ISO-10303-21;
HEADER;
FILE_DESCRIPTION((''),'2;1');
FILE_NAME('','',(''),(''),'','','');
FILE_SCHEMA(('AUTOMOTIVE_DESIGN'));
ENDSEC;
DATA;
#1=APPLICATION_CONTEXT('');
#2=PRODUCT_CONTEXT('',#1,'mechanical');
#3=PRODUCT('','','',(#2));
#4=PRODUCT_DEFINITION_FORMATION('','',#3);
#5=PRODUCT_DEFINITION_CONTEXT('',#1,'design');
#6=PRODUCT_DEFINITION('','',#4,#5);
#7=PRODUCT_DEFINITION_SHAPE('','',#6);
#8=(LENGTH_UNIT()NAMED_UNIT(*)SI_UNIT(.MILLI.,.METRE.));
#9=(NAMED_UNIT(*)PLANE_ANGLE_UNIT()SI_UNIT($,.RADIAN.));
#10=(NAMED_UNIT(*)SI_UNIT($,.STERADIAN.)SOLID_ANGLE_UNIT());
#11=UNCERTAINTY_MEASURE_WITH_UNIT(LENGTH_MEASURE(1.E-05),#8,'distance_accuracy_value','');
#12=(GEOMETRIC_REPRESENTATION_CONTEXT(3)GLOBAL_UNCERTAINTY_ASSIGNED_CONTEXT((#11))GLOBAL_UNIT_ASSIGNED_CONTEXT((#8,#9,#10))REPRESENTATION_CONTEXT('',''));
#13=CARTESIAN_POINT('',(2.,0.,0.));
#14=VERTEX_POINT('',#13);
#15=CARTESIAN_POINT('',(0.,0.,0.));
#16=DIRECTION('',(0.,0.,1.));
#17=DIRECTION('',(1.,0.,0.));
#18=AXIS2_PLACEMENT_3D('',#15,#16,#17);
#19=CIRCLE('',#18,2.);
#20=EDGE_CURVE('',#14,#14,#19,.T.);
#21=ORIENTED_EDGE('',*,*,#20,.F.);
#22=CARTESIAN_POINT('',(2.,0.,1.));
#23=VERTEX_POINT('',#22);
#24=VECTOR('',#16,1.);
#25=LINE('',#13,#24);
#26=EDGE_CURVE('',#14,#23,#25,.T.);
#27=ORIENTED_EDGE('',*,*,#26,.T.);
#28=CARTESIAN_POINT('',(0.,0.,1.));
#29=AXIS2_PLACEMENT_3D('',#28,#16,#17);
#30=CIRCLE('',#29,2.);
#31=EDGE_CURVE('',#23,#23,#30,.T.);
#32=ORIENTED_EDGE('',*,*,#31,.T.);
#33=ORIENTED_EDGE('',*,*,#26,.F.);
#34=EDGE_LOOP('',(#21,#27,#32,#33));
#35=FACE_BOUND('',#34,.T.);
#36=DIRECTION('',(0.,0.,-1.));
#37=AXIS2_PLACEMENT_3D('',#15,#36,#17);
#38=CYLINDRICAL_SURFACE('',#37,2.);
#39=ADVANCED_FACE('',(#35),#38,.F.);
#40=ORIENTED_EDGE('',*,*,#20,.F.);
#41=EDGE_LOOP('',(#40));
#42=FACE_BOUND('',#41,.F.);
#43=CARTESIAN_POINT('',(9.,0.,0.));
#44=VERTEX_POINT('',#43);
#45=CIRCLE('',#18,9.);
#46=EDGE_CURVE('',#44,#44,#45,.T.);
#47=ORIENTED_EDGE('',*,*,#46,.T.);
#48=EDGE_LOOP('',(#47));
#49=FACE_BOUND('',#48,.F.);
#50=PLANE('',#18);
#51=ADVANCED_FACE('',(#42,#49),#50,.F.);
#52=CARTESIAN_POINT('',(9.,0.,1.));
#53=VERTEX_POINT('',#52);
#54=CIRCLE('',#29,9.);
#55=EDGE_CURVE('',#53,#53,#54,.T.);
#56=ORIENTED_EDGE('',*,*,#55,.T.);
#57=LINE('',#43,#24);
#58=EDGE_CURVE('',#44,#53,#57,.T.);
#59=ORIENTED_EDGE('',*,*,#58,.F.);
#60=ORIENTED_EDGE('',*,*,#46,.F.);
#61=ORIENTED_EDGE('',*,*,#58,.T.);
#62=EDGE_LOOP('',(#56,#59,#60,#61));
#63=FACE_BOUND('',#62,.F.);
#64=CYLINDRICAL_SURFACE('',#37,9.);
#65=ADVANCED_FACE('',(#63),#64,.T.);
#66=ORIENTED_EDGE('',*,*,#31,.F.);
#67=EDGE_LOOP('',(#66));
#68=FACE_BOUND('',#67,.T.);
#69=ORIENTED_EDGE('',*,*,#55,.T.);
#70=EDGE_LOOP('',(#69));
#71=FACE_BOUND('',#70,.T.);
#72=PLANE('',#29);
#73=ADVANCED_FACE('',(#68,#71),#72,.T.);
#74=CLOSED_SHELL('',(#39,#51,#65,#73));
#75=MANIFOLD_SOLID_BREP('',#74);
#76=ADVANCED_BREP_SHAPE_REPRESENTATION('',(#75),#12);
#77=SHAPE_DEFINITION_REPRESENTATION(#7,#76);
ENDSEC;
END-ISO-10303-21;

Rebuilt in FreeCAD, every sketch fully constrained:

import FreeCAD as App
import Part
import Sketcher
from FreeCAD import Vector

doc = App.newDocument("Part")
body = doc.addObject("PartDesign::Body", "Body")

# Sketch on XY plane
sketch1 = body.newObject("Sketcher::SketchObject", "Sketch")
sketch1.AttachmentSupport = (doc.getObject("XY_Plane"), [""])
sketch1.MapMode = "FlatFace"
sketch1.addGeometry(Part.Circle(Vector(0, 0, 0), Vector(0, 0, 1), 9), False)
sketch1.addGeometry(Part.Circle(Vector(0, 0, 0), Vector(0, 0, 1), 2), False)
sketch1.addConstraint(Sketcher.Constraint("Coincident", 0, 3, -1, 1))
sketch1.addConstraint(Sketcher.Constraint("Coincident", 1, 3, -1, 1))
sketch1.addConstraint(Sketcher.Constraint("Diameter", 0, 18.0))
sketch1.addConstraint(Sketcher.Constraint("Diameter", 1, 4.0))
pad1 = body.newObject("PartDesign::Pad", "Pad")
pad1.Profile = sketch1
pad1.Length = 1

doc.recompute()
